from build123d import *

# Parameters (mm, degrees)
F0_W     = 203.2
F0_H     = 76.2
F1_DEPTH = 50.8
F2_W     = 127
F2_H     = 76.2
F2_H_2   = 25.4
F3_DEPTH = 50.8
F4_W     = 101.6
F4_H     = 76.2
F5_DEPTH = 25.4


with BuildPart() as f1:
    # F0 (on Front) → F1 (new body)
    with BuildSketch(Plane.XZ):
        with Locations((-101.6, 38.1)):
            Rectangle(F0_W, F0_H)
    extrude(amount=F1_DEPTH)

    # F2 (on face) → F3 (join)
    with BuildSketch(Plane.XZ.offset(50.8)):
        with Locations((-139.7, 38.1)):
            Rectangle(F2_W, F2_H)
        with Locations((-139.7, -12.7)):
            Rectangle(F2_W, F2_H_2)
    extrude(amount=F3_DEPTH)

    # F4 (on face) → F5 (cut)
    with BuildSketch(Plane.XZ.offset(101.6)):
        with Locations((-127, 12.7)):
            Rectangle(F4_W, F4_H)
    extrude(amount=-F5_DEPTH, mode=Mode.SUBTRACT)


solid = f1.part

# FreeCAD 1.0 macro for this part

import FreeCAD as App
import Part
import Sketcher

V = App.Vector
Q = App.Units.Quantity


def add_polygon(sketch, points):
    """Adds a closed chain of lines whose ends are joined by coincident constraints."""
    first, n = sketch.GeometryCount, len(points)
    for a, b in zip(points, points[1:] + points[:1]):
        sketch.addGeometry(Part.LineSegment(App.Vector(*a, 0), App.Vector(*b, 0)), False)
    for i in range(n):
        sketch.addConstraint(Sketcher.Constraint("Coincident", first + i, 2, first + (i + 1) % n, 1))

doc = App.newDocument("Part")
body = doc.addObject("PartDesign::Body", "Body")

# Sketch on XZ plane
sketch1 = body.newObject("Sketcher::SketchObject", "Sketch")
sketch1.AttachmentSupport = (doc.getObject("XZ_Plane"), [""])
sketch1.MapMode = "FlatFace"
add_polygon(sketch1, [(-203, 76), (-203, 0), (0, 0), (0, 76)])  # lines 0-3
sketch1.addConstraint([
    Sketcher.Constraint("Vertical", 0),
    Sketcher.Constraint("Horizontal", 1),
    Sketcher.Constraint("Vertical", 2),
    Sketcher.Constraint("Horizontal", 3),
    Sketcher.Constraint("Coincident", 1, 2, -1, 1),
    Sketcher.Constraint("DistanceX", 1, 1, 1, 2, Q("8 in")),
    Sketcher.Constraint("DistanceY", 0, 2, 0, 1, Q("3 in")),
])
pad1 = body.newObject("PartDesign::Pad", "Pad")
pad1.Profile = sketch1
pad1.Length = Q("2 in")

# Sketch on XZ plane
sketch2 = body.newObject("Sketcher::SketchObject", "Sketch001")
sketch2.AttachmentSupport = (doc.getObject("XZ_Plane"), [""])
sketch2.MapMode = "FlatFace"
sketch2.AttachmentOffset = App.Placement(V(0, 0, 2 * 25.4), App.Rotation())
add_polygon(sketch2, [(-203, 76), (-203, -25), (-76, -25), (-76, 76)])  # lines 0-3
sketch2.addConstraint([
    Sketcher.Constraint("Vertical", 0),
    Sketcher.Constraint("Horizontal", 1),
    Sketcher.Constraint("Vertical", 2),
    Sketcher.Constraint("Horizontal", 3),
    Sketcher.Constraint("DistanceX", 1, 1, 1, 2, Q("5 in")),
    Sketcher.Constraint("DistanceY", 0, 2, 0, 1, Q("4 in")),
    Sketcher.Constraint("DistanceX", 0, 2, -1, 1, Q("8 in")),
    Sketcher.Constraint("DistanceY", 0, 2, -1, 1, Q("1 in")),
])
pad2 = body.newObject("PartDesign::Pad", "Pad001")
pad2.Profile = sketch2
pad2.Length = Q("2 in")

# Sketch on XZ plane
sketch3 = body.newObject("Sketcher::SketchObject", "Sketch002")
sketch3.AttachmentSupport = (doc.getObject("XZ_Plane"), [""])
sketch3.MapMode = "FlatFace"
sketch3.AttachmentOffset = App.Placement(V(0, 0, 4 * 25.4), App.Rotation())
add_polygon(sketch3, [(-178, 51), (-178, -25), (-76, -25), (-76, 51)])  # lines 0-3
sketch3.addConstraint([
    Sketcher.Constraint("Vertical", 0),
    Sketcher.Constraint("Horizontal", 1),
    Sketcher.Constraint("Vertical", 2),
    Sketcher.Constraint("Horizontal", 3),
    Sketcher.Constraint("DistanceX", 1, 1, 1, 2, Q("4 in")),
    Sketcher.Constraint("DistanceY", 0, 2, 0, 1, Q("3 in")),
    Sketcher.Constraint("DistanceX", 0, 2, -1, 1, Q("7 in")),
    Sketcher.Constraint("DistanceY", 0, 2, -1, 1, Q("1 in")),
])
pocket1 = body.newObject("PartDesign::Pocket", "Pocket")
pocket1.Profile = sketch3
pocket1.Length = Q("1 in")

doc.recompute()
